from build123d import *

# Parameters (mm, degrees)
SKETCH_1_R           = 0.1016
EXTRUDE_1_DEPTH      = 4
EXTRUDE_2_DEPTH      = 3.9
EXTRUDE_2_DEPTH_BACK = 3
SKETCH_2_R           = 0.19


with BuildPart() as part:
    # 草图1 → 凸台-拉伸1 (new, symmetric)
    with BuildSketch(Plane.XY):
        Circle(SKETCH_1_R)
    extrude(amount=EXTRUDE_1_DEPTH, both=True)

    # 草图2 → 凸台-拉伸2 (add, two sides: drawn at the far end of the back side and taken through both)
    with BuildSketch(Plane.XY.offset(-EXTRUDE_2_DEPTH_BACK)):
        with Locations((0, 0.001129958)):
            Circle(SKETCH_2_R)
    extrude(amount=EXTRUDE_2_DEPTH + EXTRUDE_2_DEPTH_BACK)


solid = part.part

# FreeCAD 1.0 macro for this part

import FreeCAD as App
import Part
import Sketcher
from FreeCAD import Vector
Q = App.Units.Quantity

doc = App.newDocument("Part")
params = doc.addObject("Spreadsheet::Sheet", "Params")
for row, (alias, value) in enumerate([
    ("pad1_length", "8 mm"),
    ("sketch2_diameter", "0.38 mm"),
    ("pad2_length", "3.9 mm"),
    ("pad2_length2", "3 mm"),
], start=1):
    params.set(f"A{row}", alias)
    params.set(f"B{row}", "=" + value)
    params.setAlias(f"B{row}", alias)

body = doc.addObject("PartDesign::Body", "Body")

sketch1 = body.newObject("Sketcher::SketchObject", "Sketch")
sketch1.AttachmentSupport = (doc.getObject("XY_Plane"), [""])
sketch1.MapMode = "FlatFace"
sketch1.addGeometry(Part.Circle(Vector(0, 0, 0), Vector(0, 0, 1), 0.1016), False)
sketch1.addConstraint(Sketcher.Constraint("Coincident", 0, 3, -1, 1))
sketch1.addConstraint(Sketcher.Constraint("Diameter", 0, Q("0.2032 mm")))
pad1 = body.newObject("PartDesign::Pad", "Pad")
pad1.Profile = sketch1
pad1.setExpression("Length", "Params.pad1_length")
pad1.Midplane = True

sketch2 = body.newObject("Sketcher::SketchObject", "Sketch001")
sketch2.AttachmentSupport = (doc.getObject("XY_Plane"), [""])
sketch2.MapMode = "FlatFace"
sketch2.addGeometry(Part.Circle(Vector(0, 0.00113, 0), Vector(0, 0, 1), 0.19), False)
sketch2.addConstraint(Sketcher.Constraint("PointOnObject", 0, 3, -2))
sketch2.addConstraint(Sketcher.Constraint("Diameter", 0, Q("0.38 mm")))
sketch2.addConstraint(Sketcher.Constraint("DistanceY", -1, 1, 0, 3, Q("0.00113 mm")))
sketch2.setExpression("Constraints[1]", "Params.sketch2_diameter")
pad2 = body.newObject("PartDesign::Pad", "Pad001")
pad2.Profile = sketch2
pad2.Type = "TwoLengths"
pad2.setExpression("Length", "Params.pad2_length")
pad2.setExpression("Length2", "Params.pad2_length2")

doc.recompute()
